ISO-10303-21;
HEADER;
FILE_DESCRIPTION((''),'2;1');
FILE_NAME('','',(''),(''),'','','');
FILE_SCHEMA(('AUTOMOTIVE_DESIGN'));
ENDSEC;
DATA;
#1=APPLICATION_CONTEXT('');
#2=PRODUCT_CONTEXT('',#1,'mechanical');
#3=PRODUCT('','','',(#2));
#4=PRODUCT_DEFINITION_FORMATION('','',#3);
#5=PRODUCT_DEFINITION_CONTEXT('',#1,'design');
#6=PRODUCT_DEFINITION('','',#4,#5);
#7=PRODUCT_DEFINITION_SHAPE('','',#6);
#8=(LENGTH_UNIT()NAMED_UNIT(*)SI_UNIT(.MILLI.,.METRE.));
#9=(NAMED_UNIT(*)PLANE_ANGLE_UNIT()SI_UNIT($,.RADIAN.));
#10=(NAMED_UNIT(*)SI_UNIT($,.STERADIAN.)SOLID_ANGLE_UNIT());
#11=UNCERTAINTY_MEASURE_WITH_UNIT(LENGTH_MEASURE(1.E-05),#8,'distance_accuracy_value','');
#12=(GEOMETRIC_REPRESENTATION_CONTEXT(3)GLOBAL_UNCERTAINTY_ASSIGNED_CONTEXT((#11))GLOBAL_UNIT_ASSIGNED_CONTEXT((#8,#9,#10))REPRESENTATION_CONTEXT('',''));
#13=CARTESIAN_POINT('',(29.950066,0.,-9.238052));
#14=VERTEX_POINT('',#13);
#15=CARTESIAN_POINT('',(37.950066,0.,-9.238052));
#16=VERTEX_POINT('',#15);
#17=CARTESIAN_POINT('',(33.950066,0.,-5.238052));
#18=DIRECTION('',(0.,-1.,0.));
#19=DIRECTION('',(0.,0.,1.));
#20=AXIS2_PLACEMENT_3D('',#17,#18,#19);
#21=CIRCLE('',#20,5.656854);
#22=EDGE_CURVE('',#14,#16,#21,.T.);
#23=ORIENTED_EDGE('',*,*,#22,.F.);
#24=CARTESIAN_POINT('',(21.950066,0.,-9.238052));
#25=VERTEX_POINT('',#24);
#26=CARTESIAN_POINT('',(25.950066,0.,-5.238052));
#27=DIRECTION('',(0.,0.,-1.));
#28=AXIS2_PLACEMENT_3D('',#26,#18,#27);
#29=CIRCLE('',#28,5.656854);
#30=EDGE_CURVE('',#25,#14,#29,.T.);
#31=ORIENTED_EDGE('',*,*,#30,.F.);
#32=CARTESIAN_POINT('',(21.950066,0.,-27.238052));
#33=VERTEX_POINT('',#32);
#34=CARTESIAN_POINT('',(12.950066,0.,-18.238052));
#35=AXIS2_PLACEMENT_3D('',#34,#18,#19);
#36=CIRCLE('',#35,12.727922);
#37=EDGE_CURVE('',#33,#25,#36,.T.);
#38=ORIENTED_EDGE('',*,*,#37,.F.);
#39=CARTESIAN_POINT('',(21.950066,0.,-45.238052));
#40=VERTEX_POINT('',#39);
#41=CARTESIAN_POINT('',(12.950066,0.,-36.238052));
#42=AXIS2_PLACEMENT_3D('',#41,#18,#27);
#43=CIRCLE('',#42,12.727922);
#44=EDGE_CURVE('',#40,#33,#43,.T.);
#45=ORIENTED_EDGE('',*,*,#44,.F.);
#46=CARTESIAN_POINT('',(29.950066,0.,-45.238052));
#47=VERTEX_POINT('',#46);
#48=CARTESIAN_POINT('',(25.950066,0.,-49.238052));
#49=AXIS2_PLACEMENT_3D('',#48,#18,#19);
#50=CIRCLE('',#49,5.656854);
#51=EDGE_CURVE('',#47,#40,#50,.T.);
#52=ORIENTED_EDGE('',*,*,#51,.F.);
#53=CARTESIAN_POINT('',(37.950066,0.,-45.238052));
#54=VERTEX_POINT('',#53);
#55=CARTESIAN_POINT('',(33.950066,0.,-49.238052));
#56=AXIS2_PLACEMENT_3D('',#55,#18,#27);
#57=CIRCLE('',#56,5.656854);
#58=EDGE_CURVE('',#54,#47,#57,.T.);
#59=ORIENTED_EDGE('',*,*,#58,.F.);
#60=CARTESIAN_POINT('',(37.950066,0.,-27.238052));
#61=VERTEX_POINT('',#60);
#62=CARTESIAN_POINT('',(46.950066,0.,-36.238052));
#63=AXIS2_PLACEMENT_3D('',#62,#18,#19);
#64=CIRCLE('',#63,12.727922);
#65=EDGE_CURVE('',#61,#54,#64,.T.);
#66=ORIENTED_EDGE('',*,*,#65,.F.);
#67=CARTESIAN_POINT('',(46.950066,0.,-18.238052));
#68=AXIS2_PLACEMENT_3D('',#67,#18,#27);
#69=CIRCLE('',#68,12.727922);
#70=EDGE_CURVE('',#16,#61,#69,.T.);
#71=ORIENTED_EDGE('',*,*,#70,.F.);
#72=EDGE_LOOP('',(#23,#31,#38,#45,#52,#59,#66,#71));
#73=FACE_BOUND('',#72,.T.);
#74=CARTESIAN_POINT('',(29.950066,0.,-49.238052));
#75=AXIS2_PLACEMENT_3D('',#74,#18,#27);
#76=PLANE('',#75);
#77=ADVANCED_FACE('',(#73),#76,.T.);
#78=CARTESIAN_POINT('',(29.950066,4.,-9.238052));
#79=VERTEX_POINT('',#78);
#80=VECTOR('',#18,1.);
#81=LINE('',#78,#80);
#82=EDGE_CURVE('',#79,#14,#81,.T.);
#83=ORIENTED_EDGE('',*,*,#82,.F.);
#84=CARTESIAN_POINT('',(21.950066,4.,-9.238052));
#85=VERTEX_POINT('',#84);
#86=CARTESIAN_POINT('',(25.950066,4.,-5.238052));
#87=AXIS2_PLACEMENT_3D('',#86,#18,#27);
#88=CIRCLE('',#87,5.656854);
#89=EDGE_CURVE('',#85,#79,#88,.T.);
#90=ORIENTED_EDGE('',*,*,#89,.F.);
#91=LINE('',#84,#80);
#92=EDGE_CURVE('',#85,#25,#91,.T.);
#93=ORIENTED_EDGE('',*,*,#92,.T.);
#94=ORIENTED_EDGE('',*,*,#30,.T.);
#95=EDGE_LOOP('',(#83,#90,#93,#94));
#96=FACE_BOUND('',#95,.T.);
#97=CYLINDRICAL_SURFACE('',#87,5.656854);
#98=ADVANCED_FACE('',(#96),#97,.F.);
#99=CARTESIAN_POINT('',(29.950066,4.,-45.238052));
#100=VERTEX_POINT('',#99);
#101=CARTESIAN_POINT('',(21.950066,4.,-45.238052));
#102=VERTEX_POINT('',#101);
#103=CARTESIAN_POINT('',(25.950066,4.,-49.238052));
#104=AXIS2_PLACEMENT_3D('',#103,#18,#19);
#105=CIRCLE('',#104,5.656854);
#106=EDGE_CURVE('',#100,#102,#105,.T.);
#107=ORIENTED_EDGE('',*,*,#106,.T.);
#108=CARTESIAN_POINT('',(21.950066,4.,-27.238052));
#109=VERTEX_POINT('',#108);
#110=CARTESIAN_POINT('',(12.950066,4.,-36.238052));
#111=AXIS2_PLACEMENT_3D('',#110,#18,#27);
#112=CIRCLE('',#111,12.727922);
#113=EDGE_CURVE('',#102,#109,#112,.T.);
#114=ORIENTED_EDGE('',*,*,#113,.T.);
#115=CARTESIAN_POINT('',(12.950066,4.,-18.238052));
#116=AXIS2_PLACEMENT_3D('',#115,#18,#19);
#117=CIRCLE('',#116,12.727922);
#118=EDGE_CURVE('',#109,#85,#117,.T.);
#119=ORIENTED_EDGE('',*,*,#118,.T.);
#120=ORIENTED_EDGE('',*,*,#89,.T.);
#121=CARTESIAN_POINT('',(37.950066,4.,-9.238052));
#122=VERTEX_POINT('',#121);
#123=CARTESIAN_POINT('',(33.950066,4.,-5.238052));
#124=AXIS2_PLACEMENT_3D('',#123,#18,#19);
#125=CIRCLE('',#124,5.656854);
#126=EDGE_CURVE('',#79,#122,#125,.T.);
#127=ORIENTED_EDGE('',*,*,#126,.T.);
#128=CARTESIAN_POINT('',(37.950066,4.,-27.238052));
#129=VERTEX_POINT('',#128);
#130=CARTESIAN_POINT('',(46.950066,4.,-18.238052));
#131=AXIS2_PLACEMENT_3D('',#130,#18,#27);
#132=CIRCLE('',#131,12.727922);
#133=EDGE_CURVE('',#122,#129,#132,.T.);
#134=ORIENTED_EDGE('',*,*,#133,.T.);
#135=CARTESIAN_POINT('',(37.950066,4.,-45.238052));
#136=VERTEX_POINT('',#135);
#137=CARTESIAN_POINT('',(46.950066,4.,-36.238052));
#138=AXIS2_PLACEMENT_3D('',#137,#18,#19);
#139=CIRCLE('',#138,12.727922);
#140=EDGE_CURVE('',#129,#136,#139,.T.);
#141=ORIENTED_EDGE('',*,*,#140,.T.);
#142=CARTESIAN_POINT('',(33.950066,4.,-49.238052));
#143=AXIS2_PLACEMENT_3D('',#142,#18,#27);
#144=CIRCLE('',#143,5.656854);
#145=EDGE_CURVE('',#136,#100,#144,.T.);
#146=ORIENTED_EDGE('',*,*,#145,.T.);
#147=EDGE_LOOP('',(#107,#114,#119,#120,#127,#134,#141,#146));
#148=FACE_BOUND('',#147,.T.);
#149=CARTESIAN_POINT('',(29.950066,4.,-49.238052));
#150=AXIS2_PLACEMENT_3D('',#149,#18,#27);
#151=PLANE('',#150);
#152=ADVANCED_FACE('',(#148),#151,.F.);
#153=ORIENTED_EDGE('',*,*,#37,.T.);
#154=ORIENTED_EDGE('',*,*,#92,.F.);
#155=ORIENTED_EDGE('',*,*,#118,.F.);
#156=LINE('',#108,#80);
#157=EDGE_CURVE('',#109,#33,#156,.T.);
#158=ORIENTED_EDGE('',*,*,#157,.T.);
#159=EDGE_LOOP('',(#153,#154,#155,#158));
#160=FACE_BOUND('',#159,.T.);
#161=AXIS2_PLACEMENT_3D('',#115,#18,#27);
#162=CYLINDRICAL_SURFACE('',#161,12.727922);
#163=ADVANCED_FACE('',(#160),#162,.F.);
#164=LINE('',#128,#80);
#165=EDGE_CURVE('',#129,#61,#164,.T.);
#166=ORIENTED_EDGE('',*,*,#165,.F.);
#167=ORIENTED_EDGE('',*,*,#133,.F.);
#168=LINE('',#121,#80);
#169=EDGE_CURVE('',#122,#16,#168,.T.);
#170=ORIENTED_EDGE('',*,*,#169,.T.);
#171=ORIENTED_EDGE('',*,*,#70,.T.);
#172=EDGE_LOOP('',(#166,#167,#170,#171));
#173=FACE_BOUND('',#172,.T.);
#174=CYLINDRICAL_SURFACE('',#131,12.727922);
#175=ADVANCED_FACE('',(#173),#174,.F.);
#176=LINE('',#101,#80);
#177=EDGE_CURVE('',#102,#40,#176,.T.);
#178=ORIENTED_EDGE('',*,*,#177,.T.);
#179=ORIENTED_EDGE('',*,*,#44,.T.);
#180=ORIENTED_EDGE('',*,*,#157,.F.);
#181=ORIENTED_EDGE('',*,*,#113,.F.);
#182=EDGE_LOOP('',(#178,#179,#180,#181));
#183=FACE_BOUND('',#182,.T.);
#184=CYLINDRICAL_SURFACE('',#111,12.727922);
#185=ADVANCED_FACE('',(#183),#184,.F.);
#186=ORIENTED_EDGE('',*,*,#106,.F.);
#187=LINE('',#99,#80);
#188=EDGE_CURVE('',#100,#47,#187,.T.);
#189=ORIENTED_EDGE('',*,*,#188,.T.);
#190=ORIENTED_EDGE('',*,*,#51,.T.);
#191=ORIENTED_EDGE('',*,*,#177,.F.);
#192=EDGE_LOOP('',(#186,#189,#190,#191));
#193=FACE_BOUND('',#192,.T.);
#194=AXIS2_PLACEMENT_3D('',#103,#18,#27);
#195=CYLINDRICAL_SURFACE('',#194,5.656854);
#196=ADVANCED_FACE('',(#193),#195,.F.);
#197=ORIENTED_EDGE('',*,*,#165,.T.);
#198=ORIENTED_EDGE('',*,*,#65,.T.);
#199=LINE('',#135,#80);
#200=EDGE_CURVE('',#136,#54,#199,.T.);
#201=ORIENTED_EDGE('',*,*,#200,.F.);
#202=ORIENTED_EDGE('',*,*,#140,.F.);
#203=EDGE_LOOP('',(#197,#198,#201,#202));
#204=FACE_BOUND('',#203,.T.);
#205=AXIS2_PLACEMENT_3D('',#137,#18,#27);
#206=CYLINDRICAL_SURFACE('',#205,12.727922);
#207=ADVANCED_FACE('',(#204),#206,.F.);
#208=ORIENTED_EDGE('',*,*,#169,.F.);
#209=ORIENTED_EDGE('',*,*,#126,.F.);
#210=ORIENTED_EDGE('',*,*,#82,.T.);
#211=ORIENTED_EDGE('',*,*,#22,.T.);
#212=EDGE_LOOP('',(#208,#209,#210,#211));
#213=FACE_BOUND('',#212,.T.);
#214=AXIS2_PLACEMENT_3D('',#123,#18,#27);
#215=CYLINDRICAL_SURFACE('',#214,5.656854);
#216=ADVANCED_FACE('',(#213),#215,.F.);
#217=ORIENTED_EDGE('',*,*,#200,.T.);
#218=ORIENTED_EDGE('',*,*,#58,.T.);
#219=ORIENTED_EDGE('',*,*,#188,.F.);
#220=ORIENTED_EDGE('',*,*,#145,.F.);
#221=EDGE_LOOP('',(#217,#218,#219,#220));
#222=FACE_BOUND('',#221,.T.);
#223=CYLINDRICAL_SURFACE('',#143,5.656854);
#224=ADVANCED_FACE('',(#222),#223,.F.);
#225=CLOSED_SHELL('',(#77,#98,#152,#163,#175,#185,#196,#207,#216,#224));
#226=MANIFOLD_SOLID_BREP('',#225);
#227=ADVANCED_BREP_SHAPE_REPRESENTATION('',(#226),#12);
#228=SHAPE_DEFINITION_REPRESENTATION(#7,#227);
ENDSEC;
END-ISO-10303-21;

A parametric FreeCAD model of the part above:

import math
import FreeCAD as App
import Part
import Sketcher

V = App.Vector
Q = App.Units.Quantity

doc = App.newDocument("Part")
params = doc.addObject("Spreadsheet::Sheet", "Params")
for row, (alias, value) in enumerate([
    ("pad1_length", "4 mm"),
], start=1):
    params.set(f"A{row}", alias)
    params.set(f"B{row}", "=" + value)
    params.setAlias(f"B{row}", alias)

body = doc.addObject("PartDesign::Body", "Body")

# Sketch on XZ plane
sketch1 = body.newObject("Sketcher::SketchObject", "Sketch")
sketch1.AttachmentSupport = (doc.getObject("XZ_Plane"), [""])
sketch1.MapMode = "FlatFace"
sketch1.addGeometry([
    Part.ArcOfCircle(Part.Circle(V(12.950066, -36.238052, 0), V(0, 0, 1), 12.727922), math.radians(-45), math.radians(45)),  # 0
    Part.ArcOfCircle(Part.Circle(V(12.950066, -18.238052, 0), V(0, 0, 1), 12.727922), math.radians(-45), math.radians(45)),  # 1
    Part.ArcOfCircle(Part.Circle(V(25.950066, -5.238052, 0), V(0, 0, 1), 5.656854), math.radians(-135), math.radians(-45)),  # 2
    Part.ArcOfCircle(Part.Circle(V(33.950066, -5.238052, 0), V(0, 0, 1), 5.656854), math.radians(-135), math.radians(-45)),  # 3
    Part.ArcOfCircle(Part.Circle(V(46.950066, -18.238052, 0), V(0, 0, 1), 12.727922), math.radians(135), math.radians(225)),  # 4
    Part.ArcOfCircle(Part.Circle(V(46.950066, -36.238052, 0), V(0, 0, 1), 12.727922), math.radians(135), math.radians(225)),  # 5
    Part.ArcOfCircle(Part.Circle(V(33.950066, -49.238052, 0), V(0, 0, 1), 5.656854), math.radians(45), math.radians(135)),  # 6
    Part.ArcOfCircle(Part.Circle(V(25.950066, -49.238052, 0), V(0, 0, 1), 5.656854), math.radians(45), math.radians(135)),  # 7
], False)
sketch1.addConstraint([
    Sketcher.Constraint("Coincident", 0, 2, 1, 1),
    Sketcher.Constraint("Tangent", 1, 2, 2, 1),
    Sketcher.Constraint("Coincident", 2, 2, 3, 1),
    Sketcher.Constraint("Tangent", 3, 2, 4, 1),
    Sketcher.Constraint("Coincident", 4, 2, 5, 1),
    Sketcher.Constraint("Tangent", 5, 2, 6, 1),
    Sketcher.Constraint("Coincident", 6, 2, 7, 1),
    Sketcher.Constraint("Tangent", 7, 2, 0, 1),
    Sketcher.Constraint("Equal", 0, 1),
    Sketcher.Constraint("Equal", 2, 3),
    Sketcher.Constraint("Equal", 1, 4),
    Sketcher.Constraint("Equal", 4, 5),
    Sketcher.Constraint("Equal", 3, 6),
    Sketcher.Constraint("Equal", 6, 7),
    Sketcher.Constraint("Horizontal", 2, 3, 3, 3),
    Sketcher.Constraint("Horizontal", 1, 3, 4, 3),
    Sketcher.Constraint("Horizontal", 0, 3, 5, 3),
    Sketcher.Constraint("Horizontal", 6, 3, 7, 3),
    Sketcher.Constraint("Horizontal", 1, 2, 2, 2),
    Sketcher.Constraint("Horizontal", 0, 2, 4, 2),
    Sketcher.Constraint("Horizontal", 5, 2, 6, 2),
    Sketcher.Constraint("Vertical", 0, 3, 1, 3),
    Sketcher.Constraint("Vertical", 0, 2, 1, 2),
    Sketcher.Constraint("DistanceY", 0, 3, 1, 3, Q("18 mm")),
    Sketcher.Constraint("DistanceX", 1, 3, 2, 3, Q("13 mm")),
    Sketcher.Constraint("DistanceY", 1, 3, 2, 3, Q("13 mm")),
    Sketcher.Constraint("DistanceX", -1, 1, 0, 3, Q("12.950066 mm")),
    Sketcher.Constraint("DistanceY", 0, 3, -1, 1, Q("36.238052 mm")),
])
pad1 = body.newObject("PartDesign::Pad", "Pad")
pad1.Profile = sketch1
pad1.setExpression("Length", "Params.pad1_length")
pad1.Reversed = True

doc.recompute()
